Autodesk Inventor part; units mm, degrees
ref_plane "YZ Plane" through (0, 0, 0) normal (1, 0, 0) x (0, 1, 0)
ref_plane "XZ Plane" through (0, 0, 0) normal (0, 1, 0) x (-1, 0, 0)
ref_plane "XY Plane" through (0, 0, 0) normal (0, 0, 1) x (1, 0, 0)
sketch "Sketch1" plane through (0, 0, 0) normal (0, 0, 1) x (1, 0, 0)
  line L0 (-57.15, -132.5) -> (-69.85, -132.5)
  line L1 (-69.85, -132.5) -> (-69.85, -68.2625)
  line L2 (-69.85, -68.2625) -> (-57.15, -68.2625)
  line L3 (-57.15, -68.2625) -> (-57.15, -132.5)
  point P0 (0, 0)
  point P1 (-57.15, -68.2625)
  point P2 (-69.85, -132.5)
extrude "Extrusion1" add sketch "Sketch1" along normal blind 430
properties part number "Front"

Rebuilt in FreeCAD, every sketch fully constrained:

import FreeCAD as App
import Part
import Sketcher
Q = App.Units.Quantity

doc = App.newDocument("Part")
body = doc.addObject("PartDesign::Body", "Body")

sketch1 = body.newObject("Sketcher::SketchObject", "Sketch")
sketch1.AttachmentSupport = (doc.getObject("XY_Plane"), [""])
sketch1.MapMode = "FlatFace"
sketch1.addGeometry([
    Part.LineSegment(App.Vector(-70, -132, 0), App.Vector(-57, -132, 0)),
    Part.LineSegment(App.Vector(-57, -132, 0), App.Vector(-57, -68, 0)),
    Part.LineSegment(App.Vector(-57, -68, 0), App.Vector(-70, -68, 0)),
    Part.LineSegment(App.Vector(-70, -68, 0), App.Vector(-70, -132, 0)),
], False)
sketch1.addConstraint([
    Sketcher.Constraint("Coincident", 0, 2, 1, 1),
    Sketcher.Constraint("Coincident", 1, 2, 2, 1),
    Sketcher.Constraint("Coincident", 2, 2, 3, 1),
    Sketcher.Constraint("Coincident", 3, 2, 0, 1),
    Sketcher.Constraint("Horizontal", 0),
    Sketcher.Constraint("Vertical", 1),
    Sketcher.Constraint("Horizontal", 2),
    Sketcher.Constraint("Vertical", 3),
    Sketcher.Constraint("DistanceX", 0, 1, 0, 2, Q("12.7 mm")),
    Sketcher.Constraint("DistanceY", 0, 2, -1, 1, Q("132.5 mm")),
    Sketcher.Constraint("DistanceX", 0, 2, -1, 1, Q("57.15 mm")),
    Sketcher.Constraint("DistanceY", 1, 1, 1, 2, Q("64.2375 mm")),
])
pad1 = body.newObject("PartDesign::Pad", "Pad")
pad1.Profile = sketch1
pad1.Length = 430

doc.recompute()
